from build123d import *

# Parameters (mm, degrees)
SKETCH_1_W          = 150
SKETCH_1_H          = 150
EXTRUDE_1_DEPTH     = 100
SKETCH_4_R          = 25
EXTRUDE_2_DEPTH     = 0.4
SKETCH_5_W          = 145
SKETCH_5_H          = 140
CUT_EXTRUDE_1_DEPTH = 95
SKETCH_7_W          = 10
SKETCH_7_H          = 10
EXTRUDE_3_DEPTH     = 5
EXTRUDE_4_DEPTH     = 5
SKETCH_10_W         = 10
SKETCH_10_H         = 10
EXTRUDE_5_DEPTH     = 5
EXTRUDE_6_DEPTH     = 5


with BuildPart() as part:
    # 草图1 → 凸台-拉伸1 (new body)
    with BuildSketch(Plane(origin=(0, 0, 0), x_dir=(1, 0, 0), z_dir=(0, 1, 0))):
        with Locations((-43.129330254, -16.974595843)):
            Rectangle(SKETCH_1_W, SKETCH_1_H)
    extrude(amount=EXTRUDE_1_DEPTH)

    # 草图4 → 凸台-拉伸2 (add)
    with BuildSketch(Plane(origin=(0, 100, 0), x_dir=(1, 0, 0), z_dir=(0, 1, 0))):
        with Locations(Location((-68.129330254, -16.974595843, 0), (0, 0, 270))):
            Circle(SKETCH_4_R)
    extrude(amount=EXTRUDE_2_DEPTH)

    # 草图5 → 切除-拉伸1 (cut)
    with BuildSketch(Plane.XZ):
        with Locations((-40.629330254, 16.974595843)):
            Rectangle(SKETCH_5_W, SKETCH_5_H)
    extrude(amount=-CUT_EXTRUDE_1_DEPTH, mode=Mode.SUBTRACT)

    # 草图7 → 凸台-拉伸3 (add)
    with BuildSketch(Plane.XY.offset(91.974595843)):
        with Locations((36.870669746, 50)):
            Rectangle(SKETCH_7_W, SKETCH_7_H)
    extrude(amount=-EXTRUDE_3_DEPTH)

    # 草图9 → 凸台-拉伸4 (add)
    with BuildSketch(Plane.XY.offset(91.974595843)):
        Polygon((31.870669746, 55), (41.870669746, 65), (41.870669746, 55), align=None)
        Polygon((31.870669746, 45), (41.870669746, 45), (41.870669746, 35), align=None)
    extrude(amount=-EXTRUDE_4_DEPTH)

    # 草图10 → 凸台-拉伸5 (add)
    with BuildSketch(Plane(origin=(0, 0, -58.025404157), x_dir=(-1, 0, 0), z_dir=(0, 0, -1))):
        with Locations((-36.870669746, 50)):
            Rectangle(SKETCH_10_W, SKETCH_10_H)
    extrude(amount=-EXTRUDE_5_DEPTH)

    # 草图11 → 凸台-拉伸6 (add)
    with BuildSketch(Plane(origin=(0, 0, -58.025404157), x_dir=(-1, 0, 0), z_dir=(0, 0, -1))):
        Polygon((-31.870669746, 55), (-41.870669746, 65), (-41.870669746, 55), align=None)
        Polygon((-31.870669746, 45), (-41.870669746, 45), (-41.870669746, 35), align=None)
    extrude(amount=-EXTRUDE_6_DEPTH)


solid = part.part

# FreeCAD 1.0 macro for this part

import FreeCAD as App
import Part
import Sketcher
Q = App.Units.Quantity


def add_polygon(sketch, points):
    """Adds a closed chain of lines whose ends are joined by coincident constraints."""
    first, n = sketch.GeometryCount, len(points)
    for a, b in zip(points, points[1:] + points[:1]):
        sketch.addGeometry(Part.LineSegment(App.Vector(*a, 0), App.Vector(*b, 0)), False)
    for i in range(n):
        sketch.addConstraint(Sketcher.Constraint("Coincident", first + i, 2, first + (i + 1) % n, 1))

doc = App.newDocument("Part")
params = doc.addObject("Spreadsheet::Sheet", "Params")
for row, (alias, value) in enumerate([
    ("sketch1_width", "150 mm"),
    ("pad1_length", "100 mm"),
    ("sketch2_diameter", "50 mm"),
    ("pad2_length", "0.4 mm"),
    ("sketch3_width", "145 mm"),
    ("sketch3_height", "140 mm"),
    ("pocket1_length", "95 mm"),
    ("sketch4_width", "10 mm"),
    ("pad3_length", "5 mm"),
    ("sketch5_width", "10 mm"),
    ("pad4_length", "5 mm"),
    ("sketch6_width", "10 mm"),
    ("pad5_length", "5 mm"),
    ("sketch7_width", "10 mm"),
    ("pad6_length", "5 mm"),
], start=1):
    params.set(f"A{row}", alias)
    params.set(f"B{row}", "=" + value)
    params.setAlias(f"B{row}", alias)

body = doc.addObject("PartDesign::Body", "Body")

sketch1 = body.newObject("Sketcher::SketchObject", "Sketch")
sketch1.AttachmentSupport = (doc.getObject("XZ_Plane"), [""])
sketch1.MapMode = "FlatFace"
add_polygon(sketch1, [(-118, -58), (-118, 92), (32, 92), (32, -58)])
sketch1.addConstraint(Sketcher.Constraint("Vertical", 0))
sketch1.addConstraint(Sketcher.Constraint("Horizontal", 1))
sketch1.addConstraint(Sketcher.Constraint("Vertical", 2))
sketch1.addConstraint(Sketcher.Constraint("Horizontal", 3))
sketch1.addConstraint(Sketcher.Constraint("Equal", 3, 0))
sketch1.addConstraint(Sketcher.Constraint("DistanceX", 1, 1, 1, 2, Q("150 mm")))
sketch1.addConstraint(Sketcher.Constraint("DistanceX", 0, 2, -1, 1, Q("118.12933 mm")))
sketch1.addConstraint(Sketcher.Constraint("DistanceY", -1, 1, 0, 2, Q("91.974596 mm")))
sketch1.setExpression("Constraints[9]", "Params.sketch1_width")
pad1 = body.newObject("PartDesign::Pad", "Pad")
pad1.Profile = sketch1
pad1.setExpression("Length", "Params.pad1_length")
pad1.Reversed = True

sketch2 = body.newObject("Sketcher::SketchObject", "Sketch001")
sketch2.AttachmentSupport = (doc.getObject("XZ_Plane"), [""])
sketch2.MapMode = "FlatFace"
sketch2.AttachmentOffset = App.Placement(App.Vector(0, 0, -100), App.Rotation())
sketch2.addGeometry(Part.Circle(App.Vector(-68, 17, 0), App.Vector(0, 0, 1), 25), False)
sketch2.addConstraint(Sketcher.Constraint("Diameter", 0, Q("50 mm")))
sketch2.addConstraint(Sketcher.Constraint("DistanceX", 0, 3, -1, 1, Q("68.12933 mm")))
sketch2.addConstraint(Sketcher.Constraint("DistanceY", -1, 1, 0, 3, Q("16.974596 mm")))
sketch2.setExpression("Constraints[0]", "Params.sketch2_diameter")
pad2 = body.newObject("PartDesign::Pad", "Pad001")
pad2.Profile = sketch2
pad2.setExpression("Length", "Params.pad2_length")
pad2.Reversed = True

sketch3 = body.newObject("Sketcher::SketchObject", "Sketch002")
sketch3.AttachmentSupport = (doc.getObject("XZ_Plane"), [""])
sketch3.MapMode = "FlatFace"
add_polygon(sketch3, [(-113, 87), (-113, -53), (32, -53), (32, 87)])
sketch3.addConstraint(Sketcher.Constraint("Vertical", 0))
sketch3.addConstraint(Sketcher.Constraint("Horizontal", 1))
sketch3.addConstraint(Sketcher.Constraint("Vertical", 2))
sketch3.addConstraint(Sketcher.Constraint("Horizontal", 3))
sketch3.addConstraint(Sketcher.Constraint("DistanceX", 1, 1, 1, 2, Q("145 mm")))
sketch3.addConstraint(Sketcher.Constraint("DistanceY", 0, 2, 0, 1, Q("140 mm")))
sketch3.addConstraint(Sketcher.Constraint("DistanceX", 0, 2, -1, 1, Q("113.12933 mm")))
sketch3.addConstraint(Sketcher.Constraint("DistanceY", 0, 2, -1, 1, Q("53.025404 mm")))
sketch3.setExpression("Constraints[8]", "Params.sketch3_width")
sketch3.setExpression("Constraints[9]", "Params.sketch3_height")
pocket1 = body.newObject("PartDesign::Pocket", "Pocket")
pocket1.Profile = sketch3
pocket1.setExpression("Length", "Params.pocket1_length")

sketch4 = body.newObject("Sketcher::SketchObject", "Sketch003")
sketch4.AttachmentSupport = (doc.getObject("XY_Plane"), [""])
sketch4.MapMode = "FlatFace"
sketch4.AttachmentOffset = App.Placement(App.Vector(0, 0, 91.974596), App.Rotation())
add_polygon(sketch4, [(32, 55), (32, 45), (42, 45), (42, 55)])
sketch4.addConstraint(Sketcher.Constraint("Vertical", 0))
sketch4.addConstraint(Sketcher.Constraint("Horizontal", 1))
sketch4.addConstraint(Sketcher.Constraint("Vertical", 2))
sketch4.addConstraint(Sketcher.Constraint("Horizontal", 3))
sketch4.addConstraint(Sketcher.Constraint("Equal", 3, 0))
sketch4.addConstraint(Sketcher.Constraint("DistanceX", 1, 1, 1, 2, Q("10 mm")))
sketch4.addConstraint(Sketcher.Constraint("DistanceY", -1, 1, 0, 2, Q("45 mm")))
sketch4.addConstraint(Sketcher.Constraint("DistanceX", -1, 1, 0, 2, Q("31.87067 mm")))
sketch4.setExpression("Constraints[9]", "Params.sketch4_width")
pad3 = body.newObject("PartDesign::Pad", "Pad002")
pad3.Profile = sketch4
pad3.setExpression("Length", "Params.pad3_length")
pad3.Reversed = True

sketch5 = body.newObject("Sketcher::SketchObject", "Sketch004")
sketch5.AttachmentSupport = (doc.getObject("XY_Plane"), [""])
sketch5.MapMode = "FlatFace"
sketch5.AttachmentOffset = App.Placement(App.Vector(0, 0, 91.974596), App.Rotation())
add_polygon(sketch5, [(42, 65), (32, 55), (42, 55)])
add_polygon(sketch5, [(42, 45), (32, 45), (42, 35)])
sketch5.addConstraint(Sketcher.Constraint("Horizontal", 1))
sketch5.addConstraint(Sketcher.Constraint("Vertical", 2))
sketch5.addConstraint(Sketcher.Constraint("Horizontal", 3))
sketch5.addConstraint(Sketcher.Constraint("Vertical", 5))
sketch5.addConstraint(Sketcher.Constraint("Perpendicular", 0, 4))
sketch5.addConstraint(Sketcher.Constraint("Vertical", 0, 2, 3, 2))
sketch5.addConstraint(Sketcher.Constraint("Vertical", 2, 2, 4, 2))
sketch5.addConstraint(Sketcher.Constraint("Equal", 3, 2))
sketch5.addConstraint(Sketcher.Constraint("DistanceX", 1, 1, 1, 2, Q("10 mm")))
sketch5.addConstraint(Sketcher.Constraint("DistanceY", -1, 1, 0, 2, Q("55 mm")))
sketch5.addConstraint(Sketcher.Constraint("DistanceY", -1, 1, 3, 2, Q("45 mm")))
sketch5.addConstraint(Sketcher.Constraint("DistanceX", -1, 1, 0, 2, Q("31.87067 mm")))
sketch5.setExpression("Constraints[14]", "Params.sketch5_width")
pad4 = body.newObject("PartDesign::Pad", "Pad003")
pad4.Profile = sketch5
pad4.setExpression("Length", "Params.pad4_length")
pad4.Reversed = True

sketch6 = body.newObject("Sketcher::SketchObject", "Sketch005")
sketch6.AttachmentSupport = (doc.getObject("XY_Plane"), [""])
sketch6.MapMode = "FlatFace"
sketch6.AttachmentOffset = App.Placement(App.Vector(0, 0, -58.025404), App.Rotation())
add_polygon(sketch6, [(42, 55), (42, 45), (32, 45), (32, 55)])
sketch6.addConstraint(Sketcher.Constraint("Vertical", 0))
sketch6.addConstraint(Sketcher.Constraint("Horizontal", 1))
sketch6.addConstraint(Sketcher.Constraint("Vertical", 2))
sketch6.addConstraint(Sketcher.Constraint("Horizontal", 3))
sketch6.addConstraint(Sketcher.Constraint("Equal", 3, 0))
sketch6.addConstraint(Sketcher.Constraint("DistanceX", 1, 2, 1, 1, Q("10 mm")))
sketch6.addConstraint(Sketcher.Constraint("DistanceY", -1, 1, 0, 2, Q("45 mm")))
sketch6.addConstraint(Sketcher.Constraint("DistanceX", -1, 1, 0, 2, Q("41.87067 mm")))
sketch6.setExpression("Constraints[9]", "Params.sketch6_width")
pad5 = body.newObject("PartDesign::Pad", "Pad004")
pad5.Profile = sketch6
pad5.setExpression("Length", "Params.pad5_length")

sketch7 = body.newObject("Sketcher::SketchObject", "Sketch006")
sketch7.AttachmentSupport = (doc.getObject("XY_Plane"), [""])
sketch7.MapMode = "FlatFace"
sketch7.AttachmentOffset = App.Placement(App.Vector(0, 0, -58.025404), App.Rotation())
add_polygon(sketch7, [(32, 55), (42, 65), (42, 55)])
add_polygon(sketch7, [(32, 45), (42, 45), (42, 35)])
sketch7.addConstraint(Sketcher.Constraint("Vertical", 1))
sketch7.addConstraint(Sketcher.Constraint("Horizontal", 2))
sketch7.addConstraint(Sketcher.Constraint("Horizontal", 3))
sketch7.addConstraint(Sketcher.Constraint("Vertical", 4))
sketch7.addConstraint(Sketcher.Constraint("Perpendicular", 0, 5))
sketch7.addConstraint(Sketcher.Constraint("Vertical", 1, 2, 3, 2))
sketch7.addConstraint(Sketcher.Constraint("Vertical", 2, 2, 5, 2))
sketch7.addConstraint(Sketcher.Constraint("Equal", 3, 1))
sketch7.addConstraint(Sketcher.Constraint("DistanceX", 2, 2, 2, 1, Q("10 mm")))
sketch7.addConstraint(Sketcher.Constraint("DistanceY", -1, 1, 0, 2, Q("65 mm")))
sketch7.addConstraint(Sketcher.Constraint("DistanceY", -1, 1, 3, 2, Q("45 mm")))
sketch7.addConstraint(Sketcher.Constraint("DistanceX", -1, 1, 0, 2, Q("41.87067 mm")))
sketch7.setExpression("Constraints[14]", "Params.sketch7_width")
pad6 = body.newObject("PartDesign::Pad", "Pad005")
pad6.Profile = sketch7
pad6.setExpression("Length", "Params.pad6_length")

doc.recompute()
